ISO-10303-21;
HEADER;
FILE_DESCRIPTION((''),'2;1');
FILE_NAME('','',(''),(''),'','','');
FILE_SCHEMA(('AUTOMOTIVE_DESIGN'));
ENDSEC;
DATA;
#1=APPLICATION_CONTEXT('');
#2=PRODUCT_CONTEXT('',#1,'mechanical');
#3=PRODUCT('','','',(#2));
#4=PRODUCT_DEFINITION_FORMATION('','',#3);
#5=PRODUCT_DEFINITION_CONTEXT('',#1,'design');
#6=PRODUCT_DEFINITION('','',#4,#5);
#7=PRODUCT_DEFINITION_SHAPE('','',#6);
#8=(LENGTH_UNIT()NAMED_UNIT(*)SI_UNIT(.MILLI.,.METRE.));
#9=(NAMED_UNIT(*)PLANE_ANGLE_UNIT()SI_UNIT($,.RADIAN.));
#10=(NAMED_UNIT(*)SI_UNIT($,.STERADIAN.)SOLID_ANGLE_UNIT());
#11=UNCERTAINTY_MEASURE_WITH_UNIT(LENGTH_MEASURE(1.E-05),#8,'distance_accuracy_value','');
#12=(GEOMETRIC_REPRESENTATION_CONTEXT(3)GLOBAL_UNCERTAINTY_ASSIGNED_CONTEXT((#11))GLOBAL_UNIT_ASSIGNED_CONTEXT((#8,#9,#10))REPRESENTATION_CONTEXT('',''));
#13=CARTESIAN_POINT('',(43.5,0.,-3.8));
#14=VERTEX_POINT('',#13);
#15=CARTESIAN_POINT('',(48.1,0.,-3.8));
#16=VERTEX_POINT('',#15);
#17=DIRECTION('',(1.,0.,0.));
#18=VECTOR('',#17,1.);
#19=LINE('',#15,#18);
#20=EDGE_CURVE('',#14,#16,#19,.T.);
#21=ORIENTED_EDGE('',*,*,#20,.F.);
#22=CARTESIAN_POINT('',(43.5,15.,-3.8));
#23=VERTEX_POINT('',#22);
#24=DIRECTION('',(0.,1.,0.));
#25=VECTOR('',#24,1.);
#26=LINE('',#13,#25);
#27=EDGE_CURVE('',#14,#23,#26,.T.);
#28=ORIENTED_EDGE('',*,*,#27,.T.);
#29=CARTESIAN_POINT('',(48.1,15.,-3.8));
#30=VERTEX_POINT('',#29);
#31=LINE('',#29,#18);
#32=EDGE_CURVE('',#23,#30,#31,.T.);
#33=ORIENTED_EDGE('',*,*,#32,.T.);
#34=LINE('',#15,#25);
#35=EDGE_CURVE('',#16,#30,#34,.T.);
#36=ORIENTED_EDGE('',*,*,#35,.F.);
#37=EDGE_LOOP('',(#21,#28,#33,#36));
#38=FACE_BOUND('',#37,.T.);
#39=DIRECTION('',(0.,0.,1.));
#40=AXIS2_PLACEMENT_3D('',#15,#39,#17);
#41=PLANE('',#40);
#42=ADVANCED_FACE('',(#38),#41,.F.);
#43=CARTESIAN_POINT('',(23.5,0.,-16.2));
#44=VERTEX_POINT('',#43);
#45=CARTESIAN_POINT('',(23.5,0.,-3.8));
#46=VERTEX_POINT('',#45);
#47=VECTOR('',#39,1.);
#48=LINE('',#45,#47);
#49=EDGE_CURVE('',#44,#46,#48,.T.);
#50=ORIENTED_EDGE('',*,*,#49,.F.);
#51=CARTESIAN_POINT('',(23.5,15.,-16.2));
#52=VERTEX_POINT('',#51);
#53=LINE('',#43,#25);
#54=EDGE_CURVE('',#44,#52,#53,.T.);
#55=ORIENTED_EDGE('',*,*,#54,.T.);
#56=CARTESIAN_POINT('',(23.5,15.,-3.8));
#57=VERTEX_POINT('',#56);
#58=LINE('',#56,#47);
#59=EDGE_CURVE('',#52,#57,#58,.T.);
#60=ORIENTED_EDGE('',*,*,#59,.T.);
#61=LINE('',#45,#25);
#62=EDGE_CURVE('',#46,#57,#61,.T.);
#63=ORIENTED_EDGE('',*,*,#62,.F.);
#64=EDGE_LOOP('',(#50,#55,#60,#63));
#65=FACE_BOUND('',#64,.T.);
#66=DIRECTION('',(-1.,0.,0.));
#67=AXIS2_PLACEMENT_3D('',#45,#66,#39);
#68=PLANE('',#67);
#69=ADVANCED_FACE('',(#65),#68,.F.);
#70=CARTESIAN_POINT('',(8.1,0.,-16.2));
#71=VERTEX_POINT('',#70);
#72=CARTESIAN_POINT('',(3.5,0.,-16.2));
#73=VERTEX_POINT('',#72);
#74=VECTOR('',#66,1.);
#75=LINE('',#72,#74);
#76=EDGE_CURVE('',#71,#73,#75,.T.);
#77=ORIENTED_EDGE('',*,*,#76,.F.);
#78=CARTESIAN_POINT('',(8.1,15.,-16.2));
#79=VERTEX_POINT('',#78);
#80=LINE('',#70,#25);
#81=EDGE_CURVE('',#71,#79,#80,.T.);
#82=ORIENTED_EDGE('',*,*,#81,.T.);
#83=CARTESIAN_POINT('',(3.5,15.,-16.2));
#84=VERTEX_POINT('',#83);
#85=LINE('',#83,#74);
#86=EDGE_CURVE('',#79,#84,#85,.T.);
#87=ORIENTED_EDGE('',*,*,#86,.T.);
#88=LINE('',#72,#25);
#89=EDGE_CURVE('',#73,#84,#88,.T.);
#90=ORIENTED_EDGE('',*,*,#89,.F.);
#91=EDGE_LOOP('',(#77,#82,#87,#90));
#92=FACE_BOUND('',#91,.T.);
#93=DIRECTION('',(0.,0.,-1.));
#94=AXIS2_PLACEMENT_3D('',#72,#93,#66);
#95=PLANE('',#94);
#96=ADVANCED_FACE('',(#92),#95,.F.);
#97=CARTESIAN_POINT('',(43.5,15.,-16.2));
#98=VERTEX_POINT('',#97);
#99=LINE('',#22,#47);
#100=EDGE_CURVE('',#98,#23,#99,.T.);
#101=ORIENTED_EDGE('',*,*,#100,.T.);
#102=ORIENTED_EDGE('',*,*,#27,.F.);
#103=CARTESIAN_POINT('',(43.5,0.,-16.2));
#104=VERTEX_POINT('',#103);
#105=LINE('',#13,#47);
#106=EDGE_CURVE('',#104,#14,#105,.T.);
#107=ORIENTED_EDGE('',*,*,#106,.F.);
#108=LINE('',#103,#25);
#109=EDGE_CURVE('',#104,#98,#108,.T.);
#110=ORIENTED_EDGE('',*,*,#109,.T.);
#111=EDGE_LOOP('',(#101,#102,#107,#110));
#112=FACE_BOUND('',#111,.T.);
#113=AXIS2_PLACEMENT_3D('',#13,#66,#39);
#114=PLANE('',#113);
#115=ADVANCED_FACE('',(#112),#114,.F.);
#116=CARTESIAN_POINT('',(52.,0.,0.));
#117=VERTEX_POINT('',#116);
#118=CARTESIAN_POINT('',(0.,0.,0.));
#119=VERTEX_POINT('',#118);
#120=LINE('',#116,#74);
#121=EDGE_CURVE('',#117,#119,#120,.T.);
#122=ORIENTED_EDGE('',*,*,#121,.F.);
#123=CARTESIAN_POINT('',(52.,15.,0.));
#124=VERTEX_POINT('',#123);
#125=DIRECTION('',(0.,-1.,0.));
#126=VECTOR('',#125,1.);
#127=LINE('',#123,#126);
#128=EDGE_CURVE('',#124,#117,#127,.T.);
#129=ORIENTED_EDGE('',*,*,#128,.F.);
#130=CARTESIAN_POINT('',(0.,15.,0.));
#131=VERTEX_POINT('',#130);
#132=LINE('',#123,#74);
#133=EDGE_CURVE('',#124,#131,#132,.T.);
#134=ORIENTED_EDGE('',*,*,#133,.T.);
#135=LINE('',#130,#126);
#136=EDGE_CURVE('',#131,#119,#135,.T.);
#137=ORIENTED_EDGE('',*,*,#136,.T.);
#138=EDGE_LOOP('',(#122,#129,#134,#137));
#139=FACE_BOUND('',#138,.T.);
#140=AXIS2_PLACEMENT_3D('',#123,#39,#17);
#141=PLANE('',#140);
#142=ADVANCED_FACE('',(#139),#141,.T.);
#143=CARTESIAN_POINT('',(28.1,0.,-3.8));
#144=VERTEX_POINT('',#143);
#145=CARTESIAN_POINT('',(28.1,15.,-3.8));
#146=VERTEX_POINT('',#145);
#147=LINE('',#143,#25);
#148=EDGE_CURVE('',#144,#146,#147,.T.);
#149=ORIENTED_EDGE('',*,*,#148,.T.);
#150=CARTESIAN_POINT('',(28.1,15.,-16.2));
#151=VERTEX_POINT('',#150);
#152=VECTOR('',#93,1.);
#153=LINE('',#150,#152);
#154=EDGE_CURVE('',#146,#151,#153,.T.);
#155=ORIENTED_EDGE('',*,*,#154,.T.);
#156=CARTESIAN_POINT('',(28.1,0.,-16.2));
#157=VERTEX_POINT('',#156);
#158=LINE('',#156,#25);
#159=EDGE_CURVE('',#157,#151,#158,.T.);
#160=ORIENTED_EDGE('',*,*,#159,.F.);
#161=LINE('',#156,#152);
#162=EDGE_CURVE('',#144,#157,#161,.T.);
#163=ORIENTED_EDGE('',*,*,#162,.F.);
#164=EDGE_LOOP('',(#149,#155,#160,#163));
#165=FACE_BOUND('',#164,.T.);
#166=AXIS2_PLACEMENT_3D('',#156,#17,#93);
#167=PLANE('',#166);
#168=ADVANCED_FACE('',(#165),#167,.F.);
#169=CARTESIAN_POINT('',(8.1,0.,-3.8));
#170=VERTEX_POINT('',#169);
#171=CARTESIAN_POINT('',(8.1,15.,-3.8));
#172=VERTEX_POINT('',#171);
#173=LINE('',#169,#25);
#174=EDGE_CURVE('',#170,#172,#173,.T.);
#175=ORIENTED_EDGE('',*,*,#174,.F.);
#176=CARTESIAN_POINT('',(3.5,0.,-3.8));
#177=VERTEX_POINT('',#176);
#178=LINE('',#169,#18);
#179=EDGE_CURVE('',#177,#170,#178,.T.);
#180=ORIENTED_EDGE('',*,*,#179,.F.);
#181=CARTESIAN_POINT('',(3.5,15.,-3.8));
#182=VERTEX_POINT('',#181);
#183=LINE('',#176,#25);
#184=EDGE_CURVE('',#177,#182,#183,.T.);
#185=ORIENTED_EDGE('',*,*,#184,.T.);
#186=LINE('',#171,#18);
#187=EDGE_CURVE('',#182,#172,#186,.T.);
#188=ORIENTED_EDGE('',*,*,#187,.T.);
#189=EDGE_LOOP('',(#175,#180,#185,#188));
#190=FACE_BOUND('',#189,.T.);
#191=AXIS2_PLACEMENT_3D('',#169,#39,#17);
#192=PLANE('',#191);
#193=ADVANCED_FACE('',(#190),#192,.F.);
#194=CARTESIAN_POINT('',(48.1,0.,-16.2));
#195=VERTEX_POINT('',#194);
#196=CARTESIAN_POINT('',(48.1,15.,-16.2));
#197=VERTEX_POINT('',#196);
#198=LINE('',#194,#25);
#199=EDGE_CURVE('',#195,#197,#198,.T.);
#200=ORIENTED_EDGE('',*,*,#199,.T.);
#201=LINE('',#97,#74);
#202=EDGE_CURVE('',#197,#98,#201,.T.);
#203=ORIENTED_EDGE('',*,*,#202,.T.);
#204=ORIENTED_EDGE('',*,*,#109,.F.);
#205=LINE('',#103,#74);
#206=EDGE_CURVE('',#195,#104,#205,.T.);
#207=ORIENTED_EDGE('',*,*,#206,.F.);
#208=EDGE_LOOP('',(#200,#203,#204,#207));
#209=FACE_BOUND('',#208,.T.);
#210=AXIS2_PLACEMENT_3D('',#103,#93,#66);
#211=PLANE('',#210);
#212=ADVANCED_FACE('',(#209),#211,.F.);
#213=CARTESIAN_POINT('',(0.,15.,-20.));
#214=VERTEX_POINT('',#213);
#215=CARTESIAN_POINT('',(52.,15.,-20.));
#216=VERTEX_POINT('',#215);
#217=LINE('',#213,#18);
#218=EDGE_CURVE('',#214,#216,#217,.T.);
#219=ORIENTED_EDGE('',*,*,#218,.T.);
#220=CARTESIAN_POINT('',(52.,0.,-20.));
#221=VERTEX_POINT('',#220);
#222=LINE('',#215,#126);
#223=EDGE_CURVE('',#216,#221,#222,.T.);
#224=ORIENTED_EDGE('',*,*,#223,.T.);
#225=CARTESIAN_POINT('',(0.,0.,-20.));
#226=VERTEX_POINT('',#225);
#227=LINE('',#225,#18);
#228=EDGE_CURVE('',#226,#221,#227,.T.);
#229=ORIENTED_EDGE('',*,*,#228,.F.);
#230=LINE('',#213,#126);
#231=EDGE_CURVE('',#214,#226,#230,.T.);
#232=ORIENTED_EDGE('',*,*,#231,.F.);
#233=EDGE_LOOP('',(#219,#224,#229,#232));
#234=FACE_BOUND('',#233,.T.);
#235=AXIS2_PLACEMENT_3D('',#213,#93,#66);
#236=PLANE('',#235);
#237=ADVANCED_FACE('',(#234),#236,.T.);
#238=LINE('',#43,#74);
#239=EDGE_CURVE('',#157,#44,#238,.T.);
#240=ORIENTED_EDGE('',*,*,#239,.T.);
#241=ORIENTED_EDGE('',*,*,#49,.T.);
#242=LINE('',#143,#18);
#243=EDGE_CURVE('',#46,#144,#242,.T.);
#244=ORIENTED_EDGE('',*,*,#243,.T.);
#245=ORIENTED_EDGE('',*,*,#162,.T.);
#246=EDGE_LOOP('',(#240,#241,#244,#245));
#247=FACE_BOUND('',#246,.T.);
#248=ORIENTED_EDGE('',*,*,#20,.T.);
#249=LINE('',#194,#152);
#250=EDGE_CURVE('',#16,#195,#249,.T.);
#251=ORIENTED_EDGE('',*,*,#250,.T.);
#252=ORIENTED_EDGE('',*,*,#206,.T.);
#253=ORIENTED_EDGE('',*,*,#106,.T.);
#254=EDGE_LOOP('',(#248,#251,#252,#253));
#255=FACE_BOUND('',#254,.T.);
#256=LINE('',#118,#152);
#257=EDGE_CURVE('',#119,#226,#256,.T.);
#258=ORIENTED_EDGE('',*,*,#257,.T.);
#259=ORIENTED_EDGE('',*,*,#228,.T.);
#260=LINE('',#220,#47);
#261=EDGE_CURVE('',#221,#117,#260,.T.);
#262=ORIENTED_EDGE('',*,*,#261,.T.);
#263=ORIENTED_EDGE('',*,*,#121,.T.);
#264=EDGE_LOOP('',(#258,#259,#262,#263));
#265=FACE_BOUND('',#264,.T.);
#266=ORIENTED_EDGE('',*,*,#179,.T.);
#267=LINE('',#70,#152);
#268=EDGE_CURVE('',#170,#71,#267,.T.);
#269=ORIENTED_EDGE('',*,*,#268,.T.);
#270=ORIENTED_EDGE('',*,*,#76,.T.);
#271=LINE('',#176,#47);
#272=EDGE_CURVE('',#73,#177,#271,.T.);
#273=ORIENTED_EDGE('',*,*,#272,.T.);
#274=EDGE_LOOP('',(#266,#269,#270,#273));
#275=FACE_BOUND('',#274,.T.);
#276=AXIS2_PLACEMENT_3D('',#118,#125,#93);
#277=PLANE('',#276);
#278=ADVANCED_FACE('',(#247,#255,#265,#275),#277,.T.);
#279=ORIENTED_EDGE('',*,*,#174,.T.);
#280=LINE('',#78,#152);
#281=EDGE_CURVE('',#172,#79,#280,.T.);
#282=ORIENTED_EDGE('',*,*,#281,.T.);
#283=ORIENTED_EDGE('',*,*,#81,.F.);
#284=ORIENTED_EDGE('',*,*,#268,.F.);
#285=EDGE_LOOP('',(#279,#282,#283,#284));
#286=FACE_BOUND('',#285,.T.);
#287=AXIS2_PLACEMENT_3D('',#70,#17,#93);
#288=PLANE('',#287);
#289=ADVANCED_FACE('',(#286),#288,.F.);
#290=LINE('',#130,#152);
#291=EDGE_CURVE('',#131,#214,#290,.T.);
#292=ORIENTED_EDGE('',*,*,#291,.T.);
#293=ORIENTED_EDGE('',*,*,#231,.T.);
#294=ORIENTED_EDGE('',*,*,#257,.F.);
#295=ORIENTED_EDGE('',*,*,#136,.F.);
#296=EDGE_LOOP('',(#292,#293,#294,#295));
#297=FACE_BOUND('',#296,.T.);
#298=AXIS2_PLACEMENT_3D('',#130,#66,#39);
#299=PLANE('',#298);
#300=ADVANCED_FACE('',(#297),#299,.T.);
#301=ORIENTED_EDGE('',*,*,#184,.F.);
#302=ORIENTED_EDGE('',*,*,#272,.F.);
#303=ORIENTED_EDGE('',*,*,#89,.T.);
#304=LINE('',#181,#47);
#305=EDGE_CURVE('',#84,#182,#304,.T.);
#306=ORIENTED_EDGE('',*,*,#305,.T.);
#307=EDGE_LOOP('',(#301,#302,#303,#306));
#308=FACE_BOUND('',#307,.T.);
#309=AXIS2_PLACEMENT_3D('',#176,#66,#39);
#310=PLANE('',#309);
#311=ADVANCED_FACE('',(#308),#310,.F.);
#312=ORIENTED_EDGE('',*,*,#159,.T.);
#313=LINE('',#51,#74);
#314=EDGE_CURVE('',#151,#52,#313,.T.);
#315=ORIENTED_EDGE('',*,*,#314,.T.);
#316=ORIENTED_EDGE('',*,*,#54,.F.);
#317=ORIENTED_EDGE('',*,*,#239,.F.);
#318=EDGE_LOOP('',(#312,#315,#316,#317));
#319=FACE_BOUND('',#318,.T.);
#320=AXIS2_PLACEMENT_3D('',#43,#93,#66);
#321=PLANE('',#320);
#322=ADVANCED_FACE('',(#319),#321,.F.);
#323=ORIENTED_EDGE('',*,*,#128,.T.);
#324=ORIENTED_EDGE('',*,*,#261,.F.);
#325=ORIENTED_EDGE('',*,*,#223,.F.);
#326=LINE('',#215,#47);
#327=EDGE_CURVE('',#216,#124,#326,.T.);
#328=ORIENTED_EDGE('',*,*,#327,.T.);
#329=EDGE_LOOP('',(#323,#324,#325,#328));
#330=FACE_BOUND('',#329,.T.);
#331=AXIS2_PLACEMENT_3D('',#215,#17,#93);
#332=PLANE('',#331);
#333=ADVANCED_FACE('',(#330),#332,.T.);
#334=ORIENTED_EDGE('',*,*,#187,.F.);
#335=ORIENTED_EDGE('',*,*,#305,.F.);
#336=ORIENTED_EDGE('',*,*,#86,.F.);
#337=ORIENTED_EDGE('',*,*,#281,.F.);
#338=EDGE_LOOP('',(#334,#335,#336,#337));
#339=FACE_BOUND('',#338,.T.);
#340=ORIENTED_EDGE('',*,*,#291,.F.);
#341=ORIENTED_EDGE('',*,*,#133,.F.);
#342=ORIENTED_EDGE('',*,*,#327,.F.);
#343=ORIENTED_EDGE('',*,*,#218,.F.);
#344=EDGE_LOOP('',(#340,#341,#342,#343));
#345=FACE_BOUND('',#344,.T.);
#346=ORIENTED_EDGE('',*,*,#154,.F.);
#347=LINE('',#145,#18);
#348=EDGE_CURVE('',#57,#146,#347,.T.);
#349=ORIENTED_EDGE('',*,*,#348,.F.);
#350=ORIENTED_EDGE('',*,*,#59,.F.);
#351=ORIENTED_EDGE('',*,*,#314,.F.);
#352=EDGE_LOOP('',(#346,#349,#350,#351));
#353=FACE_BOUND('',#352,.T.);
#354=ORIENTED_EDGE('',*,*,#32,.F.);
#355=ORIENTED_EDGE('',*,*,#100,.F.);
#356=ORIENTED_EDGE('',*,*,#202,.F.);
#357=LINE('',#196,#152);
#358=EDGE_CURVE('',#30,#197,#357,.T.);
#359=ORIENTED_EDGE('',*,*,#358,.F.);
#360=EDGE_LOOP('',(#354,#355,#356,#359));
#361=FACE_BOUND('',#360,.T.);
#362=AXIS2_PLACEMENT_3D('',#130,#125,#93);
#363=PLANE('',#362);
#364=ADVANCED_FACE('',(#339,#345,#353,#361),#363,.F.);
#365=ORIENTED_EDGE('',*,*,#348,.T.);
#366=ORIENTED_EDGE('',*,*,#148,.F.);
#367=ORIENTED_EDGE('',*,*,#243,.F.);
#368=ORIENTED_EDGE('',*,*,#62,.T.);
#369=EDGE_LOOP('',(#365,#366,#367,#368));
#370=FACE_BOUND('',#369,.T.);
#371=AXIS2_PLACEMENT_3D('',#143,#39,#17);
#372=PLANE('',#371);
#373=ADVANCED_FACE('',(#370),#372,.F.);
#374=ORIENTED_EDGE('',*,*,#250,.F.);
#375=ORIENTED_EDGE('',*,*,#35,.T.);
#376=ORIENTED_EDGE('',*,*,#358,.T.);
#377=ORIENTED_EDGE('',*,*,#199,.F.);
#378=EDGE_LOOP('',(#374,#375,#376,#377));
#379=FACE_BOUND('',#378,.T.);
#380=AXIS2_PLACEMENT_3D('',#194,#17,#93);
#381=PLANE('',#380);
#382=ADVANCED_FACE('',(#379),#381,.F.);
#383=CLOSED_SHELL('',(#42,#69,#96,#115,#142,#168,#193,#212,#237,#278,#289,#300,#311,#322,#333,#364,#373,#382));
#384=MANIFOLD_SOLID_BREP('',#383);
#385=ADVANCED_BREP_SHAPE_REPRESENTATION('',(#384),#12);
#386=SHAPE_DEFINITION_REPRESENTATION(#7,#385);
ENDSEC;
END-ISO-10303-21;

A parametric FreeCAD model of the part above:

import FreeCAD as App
import Part
import Sketcher

V = App.Vector
Q = App.Units.Quantity

doc = App.newDocument("Part")
body = doc.addObject("PartDesign::Body", "Body")

# Sketch on XZ plane
sketch1 = doc.addObject("Sketcher::SketchObject", "Sketch")
body.addObject(sketch1)
sketch1.AttachmentSupport = (doc.XZ_Plane, [""])
sketch1.MapMode = "FlatFace"
sketch1.addGeometry([
    Part.LineSegment(V(0, -20, 0), V(0, 0, 0)),
    Part.LineSegment(V(0, 0, 0), V(52, 0, 0)),
    Part.LineSegment(V(52, 0, 0), V(52, -20, 0)),
    Part.LineSegment(V(52, -20, 0), V(0, -20, 0)),
], False)
sketch1.addConstraint([
    Sketcher.Constraint("Coincident", 0, 2, 1, 1),
    Sketcher.Constraint("Coincident", 1, 2, 2, 1),
    Sketcher.Constraint("Coincident", 2, 2, 3, 1),
    Sketcher.Constraint("Coincident", 3, 2, 0, 1),
    Sketcher.Constraint("Vertical", 0),
    Sketcher.Constraint("Horizontal", 1),
    Sketcher.Constraint("Vertical", 2),
    Sketcher.Constraint("Horizontal", 3),
    Sketcher.Constraint("Coincident", 0, 2, -1, 1),
    Sketcher.Constraint("DistanceX", 1, 1, 1, 2, Q("52 mm")),
    Sketcher.Constraint("DistanceY", 0, 1, 0, 2, Q("20 mm")),
])
pad1 = doc.addObject("PartDesign::Pad", "Pad")
body.addObject(pad1)
pad1.Profile = sketch1
pad1.Length = 15
pad1.Reversed = True

# Sketch on XZ plane
sketch2 = doc.addObject("Sketcher::SketchObject", "Sketch001")
body.addObject(sketch2)
sketch2.AttachmentSupport = (doc.XZ_Plane, [""])
sketch2.MapMode = "FlatFace"
sketch2.AttachmentOffset = App.Placement(V(0, 0, -15), App.Rotation())
sketch2.addGeometry([
    Part.LineSegment(V(3.5, -16.2, 0), V(3.5, -3.8, 0)),  # 0
    Part.LineSegment(V(3.5, -3.8, 0), V(8.1, -3.8, 0)),  # 1
    Part.LineSegment(V(8.1, -3.8, 0), V(8.1, -16.2, 0)),  # 2
    Part.LineSegment(V(8.1, -16.2, 0), V(3.5, -16.2, 0)),  # 3
    Part.LineSegment(V(43.5, -16.2, 0), V(43.5, -3.8, 0)),  # 4
    Part.LineSegment(V(43.5, -3.8, 0), V(48.1, -3.8, 0)),  # 5
    Part.LineSegment(V(48.1, -3.8, 0), V(48.1, -16.2, 0)),  # 6
    Part.LineSegment(V(48.1, -16.2, 0), V(43.5, -16.2, 0)),  # 7
    Part.LineSegment(V(23.5, -16.2, 0), V(23.5, -3.8, 0)),  # 8
    Part.LineSegment(V(23.5, -3.8, 0), V(28.1, -3.8, 0)),  # 9
    Part.LineSegment(V(28.1, -3.8, 0), V(28.1, -16.2, 0)),  # 10
    Part.LineSegment(V(28.1, -16.2, 0), V(23.5, -16.2, 0)),  # 11
], False)
sketch2.addConstraint([
    Sketcher.Constraint("Coincident", 0, 2, 1, 1),
    Sketcher.Constraint("Coincident", 1, 2, 2, 1),
    Sketcher.Constraint("Coincident", 2, 2, 3, 1),
    Sketcher.Constraint("Coincident", 3, 2, 0, 1),
    Sketcher.Constraint("Coincident", 4, 2, 5, 1),
    Sketcher.Constraint("Coincident", 5, 2, 6, 1),
    Sketcher.Constraint("Coincident", 6, 2, 7, 1),
    Sketcher.Constraint("Coincident", 7, 2, 4, 1),
    Sketcher.Constraint("Coincident", 8, 2, 9, 1),
    Sketcher.Constraint("Coincident", 9, 2, 10, 1),
    Sketcher.Constraint("Coincident", 10, 2, 11, 1),
    Sketcher.Constraint("Coincident", 11, 2, 8, 1),
    Sketcher.Constraint("Vertical", 0),
    Sketcher.Constraint("Horizontal", 1),
    Sketcher.Constraint("Vertical", 2),
    Sketcher.Constraint("Horizontal", 3),
    Sketcher.Constraint("Vertical", 4),
    Sketcher.Constraint("Horizontal", 5),
    Sketcher.Constraint("Vertical", 6),
    Sketcher.Constraint("Horizontal", 7),
    Sketcher.Constraint("Vertical", 8),
    Sketcher.Constraint("Horizontal", 9),
    Sketcher.Constraint("Vertical", 10),
    Sketcher.Constraint("Horizontal", 11),
    Sketcher.Constraint("Horizontal", 1, 2, 4, 2),
    Sketcher.Constraint("Horizontal", 3, 2, 6, 2),
    Sketcher.Constraint("Horizontal", 5, 2, 8, 2),
    Sketcher.Constraint("Horizontal", 7, 2, 10, 2),
    Sketcher.Constraint("Equal", 3, 5),
    Sketcher.Constraint("Equal", 7, 9),
    Sketcher.Constraint("DistanceX", 1, 1, 1, 2, Q("4.6 mm")),
    Sketcher.Constraint("DistanceY", 0, 1, 0, 2, Q("12.4 mm")),
    Sketcher.Constraint("DistanceX", 0, 2, 4, 2, Q("40 mm")),
    Sketcher.Constraint("DistanceX", 0, 2, 8, 2, Q("20 mm")),
    Sketcher.Constraint("DistanceX", -1, 1, 0, 2, Q("3.5 mm")),
    Sketcher.Constraint("DistanceY", 0, 2, -1, 1, Q("3.8 mm")),
])
pocket1 = doc.addObject("PartDesign::Pocket", "Pocket")
body.addObject(pocket1)
pocket1.Profile = sketch2
pocket1.Type = "ThroughAll"
pocket1.Reversed = True

doc.recompute()
